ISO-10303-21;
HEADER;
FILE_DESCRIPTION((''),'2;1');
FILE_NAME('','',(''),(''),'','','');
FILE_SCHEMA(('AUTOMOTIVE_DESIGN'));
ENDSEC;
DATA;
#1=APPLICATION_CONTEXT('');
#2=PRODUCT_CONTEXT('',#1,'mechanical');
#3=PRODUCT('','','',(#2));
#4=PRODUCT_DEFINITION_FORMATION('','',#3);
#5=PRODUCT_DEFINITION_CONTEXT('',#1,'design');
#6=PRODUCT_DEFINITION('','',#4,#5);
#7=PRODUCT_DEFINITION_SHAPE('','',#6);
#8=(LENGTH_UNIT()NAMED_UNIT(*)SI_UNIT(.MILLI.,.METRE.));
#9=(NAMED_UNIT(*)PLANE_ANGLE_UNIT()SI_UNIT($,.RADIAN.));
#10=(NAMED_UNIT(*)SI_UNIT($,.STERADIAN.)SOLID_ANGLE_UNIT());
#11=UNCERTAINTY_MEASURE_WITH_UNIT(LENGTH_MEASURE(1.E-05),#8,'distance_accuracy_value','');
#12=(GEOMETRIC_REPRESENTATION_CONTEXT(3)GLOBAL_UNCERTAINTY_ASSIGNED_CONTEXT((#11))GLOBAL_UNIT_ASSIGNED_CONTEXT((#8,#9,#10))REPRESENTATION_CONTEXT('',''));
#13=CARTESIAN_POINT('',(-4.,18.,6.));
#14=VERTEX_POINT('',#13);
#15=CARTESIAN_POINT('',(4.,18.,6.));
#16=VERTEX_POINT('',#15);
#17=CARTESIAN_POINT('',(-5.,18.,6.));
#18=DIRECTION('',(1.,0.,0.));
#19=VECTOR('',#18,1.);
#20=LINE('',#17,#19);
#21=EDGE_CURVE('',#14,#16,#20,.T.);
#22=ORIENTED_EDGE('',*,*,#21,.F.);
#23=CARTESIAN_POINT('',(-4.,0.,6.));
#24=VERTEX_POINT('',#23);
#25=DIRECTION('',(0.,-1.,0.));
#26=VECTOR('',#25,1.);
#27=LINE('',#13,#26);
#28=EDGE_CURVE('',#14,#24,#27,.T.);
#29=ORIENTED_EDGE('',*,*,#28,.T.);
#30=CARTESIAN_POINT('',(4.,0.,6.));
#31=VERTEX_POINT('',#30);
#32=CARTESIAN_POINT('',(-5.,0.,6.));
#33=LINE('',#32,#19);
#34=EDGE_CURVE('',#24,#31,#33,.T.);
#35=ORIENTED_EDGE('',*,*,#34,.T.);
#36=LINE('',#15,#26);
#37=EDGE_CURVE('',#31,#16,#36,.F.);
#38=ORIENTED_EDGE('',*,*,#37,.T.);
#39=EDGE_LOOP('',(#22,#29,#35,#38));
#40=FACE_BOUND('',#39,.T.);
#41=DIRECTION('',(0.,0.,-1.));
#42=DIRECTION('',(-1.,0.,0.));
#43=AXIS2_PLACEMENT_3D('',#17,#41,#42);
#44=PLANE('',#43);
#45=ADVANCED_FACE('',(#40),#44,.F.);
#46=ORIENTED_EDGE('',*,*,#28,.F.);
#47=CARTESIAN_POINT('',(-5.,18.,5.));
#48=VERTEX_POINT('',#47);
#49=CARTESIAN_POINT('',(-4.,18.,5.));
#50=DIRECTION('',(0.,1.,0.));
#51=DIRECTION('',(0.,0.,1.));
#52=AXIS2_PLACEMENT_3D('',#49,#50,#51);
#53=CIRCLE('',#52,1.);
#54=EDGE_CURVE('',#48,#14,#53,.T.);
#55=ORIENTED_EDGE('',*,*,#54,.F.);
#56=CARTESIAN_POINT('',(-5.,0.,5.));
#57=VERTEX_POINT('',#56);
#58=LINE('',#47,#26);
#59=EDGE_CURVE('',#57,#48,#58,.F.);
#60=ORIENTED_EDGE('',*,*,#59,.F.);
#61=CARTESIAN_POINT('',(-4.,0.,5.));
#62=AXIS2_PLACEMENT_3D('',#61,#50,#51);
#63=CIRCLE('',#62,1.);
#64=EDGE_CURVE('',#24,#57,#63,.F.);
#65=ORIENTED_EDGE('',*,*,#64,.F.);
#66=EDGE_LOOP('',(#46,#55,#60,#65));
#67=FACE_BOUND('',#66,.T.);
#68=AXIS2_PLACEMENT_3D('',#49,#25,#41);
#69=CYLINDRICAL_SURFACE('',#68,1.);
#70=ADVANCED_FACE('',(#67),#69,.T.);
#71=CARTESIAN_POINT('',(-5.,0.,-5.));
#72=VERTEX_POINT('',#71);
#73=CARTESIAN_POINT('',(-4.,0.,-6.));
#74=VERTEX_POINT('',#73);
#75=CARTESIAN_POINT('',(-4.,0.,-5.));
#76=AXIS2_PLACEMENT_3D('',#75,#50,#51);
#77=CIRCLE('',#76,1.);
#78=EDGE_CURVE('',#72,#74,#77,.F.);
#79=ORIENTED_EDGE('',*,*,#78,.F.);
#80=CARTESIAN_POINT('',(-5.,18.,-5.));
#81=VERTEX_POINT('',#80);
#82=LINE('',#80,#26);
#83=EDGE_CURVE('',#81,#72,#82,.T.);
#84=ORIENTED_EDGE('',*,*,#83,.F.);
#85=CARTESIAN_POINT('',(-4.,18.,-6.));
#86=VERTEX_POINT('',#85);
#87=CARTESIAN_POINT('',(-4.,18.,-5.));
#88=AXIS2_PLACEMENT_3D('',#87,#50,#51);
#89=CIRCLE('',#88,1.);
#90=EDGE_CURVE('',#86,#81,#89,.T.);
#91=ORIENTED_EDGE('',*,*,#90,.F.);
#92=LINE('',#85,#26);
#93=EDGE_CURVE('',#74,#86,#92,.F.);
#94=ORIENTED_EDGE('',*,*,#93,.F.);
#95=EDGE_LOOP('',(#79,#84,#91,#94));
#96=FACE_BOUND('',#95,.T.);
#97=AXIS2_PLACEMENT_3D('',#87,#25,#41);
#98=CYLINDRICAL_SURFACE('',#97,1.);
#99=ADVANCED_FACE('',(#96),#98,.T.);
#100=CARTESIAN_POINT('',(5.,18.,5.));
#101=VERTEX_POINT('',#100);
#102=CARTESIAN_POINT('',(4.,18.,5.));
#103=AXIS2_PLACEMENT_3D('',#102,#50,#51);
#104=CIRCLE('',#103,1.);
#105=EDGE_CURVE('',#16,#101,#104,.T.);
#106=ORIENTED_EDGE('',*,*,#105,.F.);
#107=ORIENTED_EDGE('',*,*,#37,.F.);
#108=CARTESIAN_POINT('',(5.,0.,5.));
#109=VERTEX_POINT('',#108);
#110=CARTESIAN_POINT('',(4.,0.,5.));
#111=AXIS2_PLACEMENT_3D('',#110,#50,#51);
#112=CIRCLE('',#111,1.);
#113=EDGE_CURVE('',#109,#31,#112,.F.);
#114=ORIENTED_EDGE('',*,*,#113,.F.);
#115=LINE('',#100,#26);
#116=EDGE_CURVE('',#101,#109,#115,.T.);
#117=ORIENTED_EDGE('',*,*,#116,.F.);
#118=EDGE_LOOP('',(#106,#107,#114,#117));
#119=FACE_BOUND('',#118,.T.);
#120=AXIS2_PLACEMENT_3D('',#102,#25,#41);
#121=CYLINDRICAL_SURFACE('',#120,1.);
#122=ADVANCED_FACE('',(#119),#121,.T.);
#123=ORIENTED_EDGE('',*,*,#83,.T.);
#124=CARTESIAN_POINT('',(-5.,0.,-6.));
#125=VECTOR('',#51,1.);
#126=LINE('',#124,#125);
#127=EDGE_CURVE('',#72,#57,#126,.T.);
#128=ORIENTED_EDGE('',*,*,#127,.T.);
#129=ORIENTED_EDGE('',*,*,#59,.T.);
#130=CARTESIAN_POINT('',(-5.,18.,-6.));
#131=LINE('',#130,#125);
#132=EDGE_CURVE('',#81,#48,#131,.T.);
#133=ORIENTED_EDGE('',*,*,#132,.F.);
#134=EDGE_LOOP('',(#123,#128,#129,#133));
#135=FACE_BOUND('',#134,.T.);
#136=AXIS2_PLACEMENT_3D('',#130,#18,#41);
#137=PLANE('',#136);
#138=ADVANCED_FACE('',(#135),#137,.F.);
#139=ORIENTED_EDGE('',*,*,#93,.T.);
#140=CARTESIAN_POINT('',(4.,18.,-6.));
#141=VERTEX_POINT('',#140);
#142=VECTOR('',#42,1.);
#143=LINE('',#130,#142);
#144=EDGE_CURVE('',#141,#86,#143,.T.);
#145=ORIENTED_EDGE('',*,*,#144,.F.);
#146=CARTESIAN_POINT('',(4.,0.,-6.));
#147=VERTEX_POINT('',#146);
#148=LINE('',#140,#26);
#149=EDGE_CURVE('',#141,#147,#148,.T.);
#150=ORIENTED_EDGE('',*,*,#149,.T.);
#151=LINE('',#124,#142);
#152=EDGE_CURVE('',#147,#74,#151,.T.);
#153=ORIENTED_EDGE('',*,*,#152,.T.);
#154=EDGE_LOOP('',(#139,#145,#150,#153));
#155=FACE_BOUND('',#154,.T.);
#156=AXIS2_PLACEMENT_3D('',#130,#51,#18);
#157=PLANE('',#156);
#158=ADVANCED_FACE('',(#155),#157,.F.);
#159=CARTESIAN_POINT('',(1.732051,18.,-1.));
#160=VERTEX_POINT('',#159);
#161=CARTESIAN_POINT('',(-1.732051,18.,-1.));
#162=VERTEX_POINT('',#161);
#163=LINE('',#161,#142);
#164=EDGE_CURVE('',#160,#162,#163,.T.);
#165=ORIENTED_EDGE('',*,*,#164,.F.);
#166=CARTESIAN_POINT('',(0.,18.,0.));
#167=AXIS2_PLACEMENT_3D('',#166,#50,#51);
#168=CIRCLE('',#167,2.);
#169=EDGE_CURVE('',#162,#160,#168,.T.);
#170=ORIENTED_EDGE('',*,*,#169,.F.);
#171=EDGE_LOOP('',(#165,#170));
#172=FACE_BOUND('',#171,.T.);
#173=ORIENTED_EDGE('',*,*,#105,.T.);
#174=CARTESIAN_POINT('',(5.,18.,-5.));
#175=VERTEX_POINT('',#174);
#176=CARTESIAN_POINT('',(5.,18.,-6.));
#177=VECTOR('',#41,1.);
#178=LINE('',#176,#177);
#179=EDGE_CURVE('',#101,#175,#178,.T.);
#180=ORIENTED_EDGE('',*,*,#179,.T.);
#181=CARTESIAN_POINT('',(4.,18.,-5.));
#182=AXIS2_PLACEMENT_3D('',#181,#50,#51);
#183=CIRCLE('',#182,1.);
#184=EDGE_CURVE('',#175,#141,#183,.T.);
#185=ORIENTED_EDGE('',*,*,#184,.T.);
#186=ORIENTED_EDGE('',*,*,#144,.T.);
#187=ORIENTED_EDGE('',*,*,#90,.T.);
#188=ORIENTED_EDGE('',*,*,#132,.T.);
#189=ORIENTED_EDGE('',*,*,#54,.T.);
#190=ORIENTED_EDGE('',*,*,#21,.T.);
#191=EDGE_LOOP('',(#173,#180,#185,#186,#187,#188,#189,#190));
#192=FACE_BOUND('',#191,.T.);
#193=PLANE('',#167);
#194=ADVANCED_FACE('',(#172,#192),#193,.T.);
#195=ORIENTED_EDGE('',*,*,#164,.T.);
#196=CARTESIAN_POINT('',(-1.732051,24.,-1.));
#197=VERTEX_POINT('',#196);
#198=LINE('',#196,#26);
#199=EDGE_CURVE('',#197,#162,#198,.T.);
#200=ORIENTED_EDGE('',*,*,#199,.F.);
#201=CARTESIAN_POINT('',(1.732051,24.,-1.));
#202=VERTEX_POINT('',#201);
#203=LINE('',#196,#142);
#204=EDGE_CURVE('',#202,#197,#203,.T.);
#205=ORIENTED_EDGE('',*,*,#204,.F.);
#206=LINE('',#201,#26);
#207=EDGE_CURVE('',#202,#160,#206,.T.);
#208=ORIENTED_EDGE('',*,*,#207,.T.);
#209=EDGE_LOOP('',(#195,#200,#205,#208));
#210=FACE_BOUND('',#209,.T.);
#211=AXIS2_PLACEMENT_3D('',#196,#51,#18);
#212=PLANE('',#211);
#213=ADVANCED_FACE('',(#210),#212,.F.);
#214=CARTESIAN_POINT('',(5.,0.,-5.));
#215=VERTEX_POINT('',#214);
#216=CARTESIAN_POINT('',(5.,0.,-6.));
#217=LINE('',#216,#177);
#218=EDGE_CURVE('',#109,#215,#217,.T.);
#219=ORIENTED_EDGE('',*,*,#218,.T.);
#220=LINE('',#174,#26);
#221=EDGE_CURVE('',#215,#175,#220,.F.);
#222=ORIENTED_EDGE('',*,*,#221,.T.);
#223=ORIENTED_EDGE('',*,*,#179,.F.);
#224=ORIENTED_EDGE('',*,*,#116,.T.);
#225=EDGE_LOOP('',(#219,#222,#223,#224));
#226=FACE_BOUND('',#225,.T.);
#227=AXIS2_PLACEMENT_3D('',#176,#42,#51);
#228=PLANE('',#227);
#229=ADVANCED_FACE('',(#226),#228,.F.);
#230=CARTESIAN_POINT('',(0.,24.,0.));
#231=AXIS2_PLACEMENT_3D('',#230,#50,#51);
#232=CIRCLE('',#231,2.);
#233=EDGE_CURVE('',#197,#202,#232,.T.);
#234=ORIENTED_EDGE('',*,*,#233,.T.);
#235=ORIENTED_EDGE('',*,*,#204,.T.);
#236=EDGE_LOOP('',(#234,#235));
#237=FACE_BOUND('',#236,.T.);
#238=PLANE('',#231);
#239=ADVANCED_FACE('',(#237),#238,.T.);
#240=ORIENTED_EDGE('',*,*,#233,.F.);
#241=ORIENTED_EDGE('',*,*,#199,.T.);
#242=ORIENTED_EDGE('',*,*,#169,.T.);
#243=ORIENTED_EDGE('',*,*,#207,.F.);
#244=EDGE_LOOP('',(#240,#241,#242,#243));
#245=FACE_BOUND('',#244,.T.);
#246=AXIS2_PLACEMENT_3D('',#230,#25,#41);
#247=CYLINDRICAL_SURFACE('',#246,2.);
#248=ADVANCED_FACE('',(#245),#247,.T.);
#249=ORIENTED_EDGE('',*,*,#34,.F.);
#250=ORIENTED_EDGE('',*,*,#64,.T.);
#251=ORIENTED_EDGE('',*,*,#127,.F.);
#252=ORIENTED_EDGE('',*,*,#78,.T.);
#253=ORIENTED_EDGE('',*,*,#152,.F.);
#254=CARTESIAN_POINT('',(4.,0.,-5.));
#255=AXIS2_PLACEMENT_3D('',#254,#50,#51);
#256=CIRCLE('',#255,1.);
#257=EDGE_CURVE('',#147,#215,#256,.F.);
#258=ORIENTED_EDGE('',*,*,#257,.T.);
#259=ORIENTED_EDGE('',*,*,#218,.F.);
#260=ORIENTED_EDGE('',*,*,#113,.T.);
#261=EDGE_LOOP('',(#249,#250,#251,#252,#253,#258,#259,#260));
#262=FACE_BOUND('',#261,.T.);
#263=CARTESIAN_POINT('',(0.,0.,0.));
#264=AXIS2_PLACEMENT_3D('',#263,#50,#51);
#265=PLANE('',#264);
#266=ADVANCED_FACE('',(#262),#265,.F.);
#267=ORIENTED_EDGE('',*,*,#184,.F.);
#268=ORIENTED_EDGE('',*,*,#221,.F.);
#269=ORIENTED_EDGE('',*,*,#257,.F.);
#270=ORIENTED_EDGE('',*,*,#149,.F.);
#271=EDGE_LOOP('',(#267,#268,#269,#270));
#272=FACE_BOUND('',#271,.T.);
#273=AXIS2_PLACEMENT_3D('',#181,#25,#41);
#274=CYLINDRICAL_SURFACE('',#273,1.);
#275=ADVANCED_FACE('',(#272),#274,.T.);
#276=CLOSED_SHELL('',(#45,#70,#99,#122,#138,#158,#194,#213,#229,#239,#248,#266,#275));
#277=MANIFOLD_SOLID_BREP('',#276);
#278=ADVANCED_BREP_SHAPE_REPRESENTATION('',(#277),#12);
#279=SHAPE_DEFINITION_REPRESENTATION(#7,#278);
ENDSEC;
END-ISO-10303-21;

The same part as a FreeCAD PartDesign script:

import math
import FreeCAD as App
import Part
import Sketcher
from FreeCAD import Vector
Q = App.Units.Quantity


def edges_at(feature, points):
    """Names of the edges that pass closest to the given points."""
    edges = feature.Shape.Edges
    near = lambda p: min(range(len(edges)), key=lambda i: edges[i].distToShape(Part.Vertex(*p))[0])
    return sorted({f"Edge{near(p) + 1}" for p in points})

doc = App.newDocument("Part")
body = doc.addObject("PartDesign::Body", "Body")

# Sketch on XZ plane
sketch1 = body.newObject("Sketcher::SketchObject", "Sketch")
sketch1.AttachmentSupport = (doc.getObject("XZ_Plane"), [""])
sketch1.MapMode = "FlatFace"
sketch1.addGeometry(Part.LineSegment(Vector(-5, -6, 0), Vector(-5, 6, 0)), False)
sketch1.addGeometry(Part.LineSegment(Vector(-5, 6, 0), Vector(5, 6, 0)), False)
sketch1.addGeometry(Part.LineSegment(Vector(5, 6, 0), Vector(5, -6, 0)), False)
sketch1.addGeometry(Part.LineSegment(Vector(5, -6, 0), Vector(-5, -6, 0)), False)
sketch1.addConstraint(Sketcher.Constraint("Coincident", 0, 2, 1, 1))
sketch1.addConstraint(Sketcher.Constraint("Coincident", 1, 2, 2, 1))
sketch1.addConstraint(Sketcher.Constraint("Coincident", 2, 2, 3, 1))
sketch1.addConstraint(Sketcher.Constraint("Coincident", 3, 2, 0, 1))
sketch1.addConstraint(Sketcher.Constraint("Vertical", 0))
sketch1.addConstraint(Sketcher.Constraint("Horizontal", 1))
sketch1.addConstraint(Sketcher.Constraint("Vertical", 2))
sketch1.addConstraint(Sketcher.Constraint("Horizontal", 3))
sketch1.addConstraint(Sketcher.Constraint("Symmetric", 0, 2, 2, 2, -1, 1))
sketch1.addConstraint(Sketcher.Constraint("DistanceX", 1, 1, 1, 2, Q("10 mm")))
sketch1.addConstraint(Sketcher.Constraint("DistanceY", 0, 1, 0, 2, Q("12 mm")))
pad1 = body.newObject("PartDesign::Pad", "Pad")
pad1.Profile = sketch1
pad1.Length = 18
pad1.Reversed = True

# Sketch on XZ plane
sketch2 = body.newObject("Sketcher::SketchObject", "Sketch001")
sketch2.AttachmentSupport = (doc.getObject("XZ_Plane"), [""])
sketch2.MapMode = "FlatFace"
sketch2.AttachmentOffset = App.Placement(Vector(0, 0, -18), App.Rotation())
sketch2.addGeometry(Part.LineSegment(Vector(1.7, -1, 0), Vector(-1.7, -1, 0)), False)
sketch2.addGeometry(Part.ArcOfCircle(Part.Circle(Vector(0, 0, 0), Vector(0, 0, 1), 2), math.radians(-30), math.radians(210)), False)
sketch2.addConstraint(Sketcher.Constraint("Coincident", 0, 1, 1, 1))
sketch2.addConstraint(Sketcher.Constraint("Coincident", 1, 2, 0, 2))
sketch2.addConstraint(Sketcher.Constraint("Horizontal", 0))
sketch2.addConstraint(Sketcher.Constraint("Coincident", 1, 3, -1, 1))
sketch2.addConstraint(Sketcher.Constraint("Radius", 1, Q("2 mm")))
sketch2.addConstraint(Sketcher.Constraint("DistanceY", 0, 1, -1, 1, Q("1 mm")))
pad2 = body.newObject("PartDesign::Pad", "Pad001")
pad2.Profile = sketch2
pad2.Length = 6
pad2.Reversed = True
doc.recompute()

fillet = body.newObject("PartDesign::Fillet", "Fillet")
fillet.Base = (pad2, edges_at(pad2, [
    (5, 9, 6),
    (-5, 9, 6),
    (-5, 9, -6),
    (5, 9, -6),
]))
fillet.Radius = 1

doc.recompute()
